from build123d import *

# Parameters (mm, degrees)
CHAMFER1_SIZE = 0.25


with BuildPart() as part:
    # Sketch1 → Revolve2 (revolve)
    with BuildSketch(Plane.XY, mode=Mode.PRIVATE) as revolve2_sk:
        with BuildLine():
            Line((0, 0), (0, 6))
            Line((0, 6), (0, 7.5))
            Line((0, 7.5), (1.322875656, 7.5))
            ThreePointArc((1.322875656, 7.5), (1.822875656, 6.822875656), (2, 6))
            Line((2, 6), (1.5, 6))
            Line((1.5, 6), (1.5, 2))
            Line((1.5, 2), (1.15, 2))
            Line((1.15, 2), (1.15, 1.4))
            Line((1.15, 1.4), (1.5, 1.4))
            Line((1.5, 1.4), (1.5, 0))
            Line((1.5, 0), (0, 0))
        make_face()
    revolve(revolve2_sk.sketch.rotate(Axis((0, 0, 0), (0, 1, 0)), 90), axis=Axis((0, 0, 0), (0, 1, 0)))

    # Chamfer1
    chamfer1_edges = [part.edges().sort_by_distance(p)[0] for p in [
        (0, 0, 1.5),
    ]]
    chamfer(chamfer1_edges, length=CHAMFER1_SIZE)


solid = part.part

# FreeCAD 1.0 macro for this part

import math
import FreeCAD as App
import Part
import Sketcher

V = App.Vector


def edges_at(feature, points):
    """Names of the edges that pass closest to the given points."""
    edges = feature.Shape.Edges
    near = lambda p: min(range(len(edges)), key=lambda i: edges[i].distToShape(Part.Vertex(*p))[0])
    return sorted({f"Edge{near(p) + 1}" for p in points})

doc = App.newDocument("Part")
body = doc.addObject("PartDesign::Body", "Body")

# Sketch on XY plane
sketch1 = body.newObject("Sketcher::SketchObject", "Sketch")
sketch1.AttachmentSupport = (doc.getObject("XY_Plane"), [""])
sketch1.MapMode = "FlatFace"
sketch1.addGeometry([
    Part.LineSegment(V(0, 7.5, 0), V(0, 0, 0)),  # 0
    Part.LineSegment(V(0, 0, 0), V(1.5, 0, 0)),  # 1
    Part.LineSegment(V(1.5, 0, 0), V(1.5, 1.4, 0)),  # 2
    Part.LineSegment(V(1.5, 1.4, 0), V(1.15, 1.4, 0)),  # 3
    Part.LineSegment(V(1.15, 1.4, 0), V(1.15, 2, 0)),  # 4
    Part.LineSegment(V(1.15, 2, 0), V(1.5, 2, 0)),  # 5
    Part.LineSegment(V(1.5, 2, 0), V(1.5, 6, 0)),  # 6
    Part.LineSegment(V(1.5, 6, 0), V(2, 6, 0)),  # 7
    Part.ArcOfCircle(Part.Circle(V(0, 6, 0), V(0, 0, 1), 2), math.radians(0), math.radians(48.590378)),  # 8
    Part.LineSegment(V(1.322876, 7.5, 0), V(0, 7.5, 0)),  # 9
], False)
sketch1.addConstraint([
    Sketcher.Constraint("Coincident", 0, 2, 1, 1),
    Sketcher.Constraint("Coincident", 1, 2, 2, 1),
    Sketcher.Constraint("Coincident", 2, 2, 3, 1),
    Sketcher.Constraint("Coincident", 3, 2, 4, 1),
    Sketcher.Constraint("Coincident", 4, 2, 5, 1),
    Sketcher.Constraint("Coincident", 5, 2, 6, 1),
    Sketcher.Constraint("Coincident", 6, 2, 7, 1),
    Sketcher.Constraint("Coincident", 7, 2, 8, 1),
    Sketcher.Constraint("Coincident", 8, 2, 9, 1),
    Sketcher.Constraint("Coincident", 9, 2, 0, 1),
    Sketcher.Constraint("Vertical", 0),
    Sketcher.Constraint("Horizontal", 1),
    Sketcher.Constraint("Vertical", 2),
    Sketcher.Constraint("Horizontal", 3),
    Sketcher.Constraint("Vertical", 4),
    Sketcher.Constraint("Horizontal", 5),
    Sketcher.Constraint("Vertical", 6),
    Sketcher.Constraint("Horizontal", 7),
    Sketcher.Constraint("Horizontal", 9),
    Sketcher.Constraint("Coincident", 0, 2, -1, 1),
    Sketcher.Constraint("PointOnObject", 8, 3, -2),
    Sketcher.Constraint("Horizontal", 8, 3, 6, 2),
    Sketcher.Constraint("Vertical", 2, 2, 5, 2),
    Sketcher.Constraint("Radius", 8, 2.0),
    Sketcher.Constraint("DistanceY", 6, 1, 6, 2, 4.0),
    Sketcher.Constraint("DistanceX", 1, 1, 1, 2, 1.5),
    Sketcher.Constraint("DistanceY", 0, 2, 0, 1, 7.5),
    Sketcher.Constraint("DistanceY", 2, 1, 2, 2, 1.4),
    Sketcher.Constraint("DistanceY", 4, 1, 4, 2, 0.6),
    Sketcher.Constraint("DistanceX", 3, 2, 3, 1, 0.35),
])
revolution = body.newObject("PartDesign::Revolution", "Revolution")
revolution.Profile = sketch1
revolution.ReferenceAxis = (sketch1, ["V_Axis"])
revolution.Angle = 360
doc.recompute()

chamfer = body.newObject("PartDesign::Chamfer", "Chamfer")
chamfer.Base = (revolution, edges_at(revolution, [(0, 0, 1.5)]))
chamfer.Size = 0.25

doc.recompute()
